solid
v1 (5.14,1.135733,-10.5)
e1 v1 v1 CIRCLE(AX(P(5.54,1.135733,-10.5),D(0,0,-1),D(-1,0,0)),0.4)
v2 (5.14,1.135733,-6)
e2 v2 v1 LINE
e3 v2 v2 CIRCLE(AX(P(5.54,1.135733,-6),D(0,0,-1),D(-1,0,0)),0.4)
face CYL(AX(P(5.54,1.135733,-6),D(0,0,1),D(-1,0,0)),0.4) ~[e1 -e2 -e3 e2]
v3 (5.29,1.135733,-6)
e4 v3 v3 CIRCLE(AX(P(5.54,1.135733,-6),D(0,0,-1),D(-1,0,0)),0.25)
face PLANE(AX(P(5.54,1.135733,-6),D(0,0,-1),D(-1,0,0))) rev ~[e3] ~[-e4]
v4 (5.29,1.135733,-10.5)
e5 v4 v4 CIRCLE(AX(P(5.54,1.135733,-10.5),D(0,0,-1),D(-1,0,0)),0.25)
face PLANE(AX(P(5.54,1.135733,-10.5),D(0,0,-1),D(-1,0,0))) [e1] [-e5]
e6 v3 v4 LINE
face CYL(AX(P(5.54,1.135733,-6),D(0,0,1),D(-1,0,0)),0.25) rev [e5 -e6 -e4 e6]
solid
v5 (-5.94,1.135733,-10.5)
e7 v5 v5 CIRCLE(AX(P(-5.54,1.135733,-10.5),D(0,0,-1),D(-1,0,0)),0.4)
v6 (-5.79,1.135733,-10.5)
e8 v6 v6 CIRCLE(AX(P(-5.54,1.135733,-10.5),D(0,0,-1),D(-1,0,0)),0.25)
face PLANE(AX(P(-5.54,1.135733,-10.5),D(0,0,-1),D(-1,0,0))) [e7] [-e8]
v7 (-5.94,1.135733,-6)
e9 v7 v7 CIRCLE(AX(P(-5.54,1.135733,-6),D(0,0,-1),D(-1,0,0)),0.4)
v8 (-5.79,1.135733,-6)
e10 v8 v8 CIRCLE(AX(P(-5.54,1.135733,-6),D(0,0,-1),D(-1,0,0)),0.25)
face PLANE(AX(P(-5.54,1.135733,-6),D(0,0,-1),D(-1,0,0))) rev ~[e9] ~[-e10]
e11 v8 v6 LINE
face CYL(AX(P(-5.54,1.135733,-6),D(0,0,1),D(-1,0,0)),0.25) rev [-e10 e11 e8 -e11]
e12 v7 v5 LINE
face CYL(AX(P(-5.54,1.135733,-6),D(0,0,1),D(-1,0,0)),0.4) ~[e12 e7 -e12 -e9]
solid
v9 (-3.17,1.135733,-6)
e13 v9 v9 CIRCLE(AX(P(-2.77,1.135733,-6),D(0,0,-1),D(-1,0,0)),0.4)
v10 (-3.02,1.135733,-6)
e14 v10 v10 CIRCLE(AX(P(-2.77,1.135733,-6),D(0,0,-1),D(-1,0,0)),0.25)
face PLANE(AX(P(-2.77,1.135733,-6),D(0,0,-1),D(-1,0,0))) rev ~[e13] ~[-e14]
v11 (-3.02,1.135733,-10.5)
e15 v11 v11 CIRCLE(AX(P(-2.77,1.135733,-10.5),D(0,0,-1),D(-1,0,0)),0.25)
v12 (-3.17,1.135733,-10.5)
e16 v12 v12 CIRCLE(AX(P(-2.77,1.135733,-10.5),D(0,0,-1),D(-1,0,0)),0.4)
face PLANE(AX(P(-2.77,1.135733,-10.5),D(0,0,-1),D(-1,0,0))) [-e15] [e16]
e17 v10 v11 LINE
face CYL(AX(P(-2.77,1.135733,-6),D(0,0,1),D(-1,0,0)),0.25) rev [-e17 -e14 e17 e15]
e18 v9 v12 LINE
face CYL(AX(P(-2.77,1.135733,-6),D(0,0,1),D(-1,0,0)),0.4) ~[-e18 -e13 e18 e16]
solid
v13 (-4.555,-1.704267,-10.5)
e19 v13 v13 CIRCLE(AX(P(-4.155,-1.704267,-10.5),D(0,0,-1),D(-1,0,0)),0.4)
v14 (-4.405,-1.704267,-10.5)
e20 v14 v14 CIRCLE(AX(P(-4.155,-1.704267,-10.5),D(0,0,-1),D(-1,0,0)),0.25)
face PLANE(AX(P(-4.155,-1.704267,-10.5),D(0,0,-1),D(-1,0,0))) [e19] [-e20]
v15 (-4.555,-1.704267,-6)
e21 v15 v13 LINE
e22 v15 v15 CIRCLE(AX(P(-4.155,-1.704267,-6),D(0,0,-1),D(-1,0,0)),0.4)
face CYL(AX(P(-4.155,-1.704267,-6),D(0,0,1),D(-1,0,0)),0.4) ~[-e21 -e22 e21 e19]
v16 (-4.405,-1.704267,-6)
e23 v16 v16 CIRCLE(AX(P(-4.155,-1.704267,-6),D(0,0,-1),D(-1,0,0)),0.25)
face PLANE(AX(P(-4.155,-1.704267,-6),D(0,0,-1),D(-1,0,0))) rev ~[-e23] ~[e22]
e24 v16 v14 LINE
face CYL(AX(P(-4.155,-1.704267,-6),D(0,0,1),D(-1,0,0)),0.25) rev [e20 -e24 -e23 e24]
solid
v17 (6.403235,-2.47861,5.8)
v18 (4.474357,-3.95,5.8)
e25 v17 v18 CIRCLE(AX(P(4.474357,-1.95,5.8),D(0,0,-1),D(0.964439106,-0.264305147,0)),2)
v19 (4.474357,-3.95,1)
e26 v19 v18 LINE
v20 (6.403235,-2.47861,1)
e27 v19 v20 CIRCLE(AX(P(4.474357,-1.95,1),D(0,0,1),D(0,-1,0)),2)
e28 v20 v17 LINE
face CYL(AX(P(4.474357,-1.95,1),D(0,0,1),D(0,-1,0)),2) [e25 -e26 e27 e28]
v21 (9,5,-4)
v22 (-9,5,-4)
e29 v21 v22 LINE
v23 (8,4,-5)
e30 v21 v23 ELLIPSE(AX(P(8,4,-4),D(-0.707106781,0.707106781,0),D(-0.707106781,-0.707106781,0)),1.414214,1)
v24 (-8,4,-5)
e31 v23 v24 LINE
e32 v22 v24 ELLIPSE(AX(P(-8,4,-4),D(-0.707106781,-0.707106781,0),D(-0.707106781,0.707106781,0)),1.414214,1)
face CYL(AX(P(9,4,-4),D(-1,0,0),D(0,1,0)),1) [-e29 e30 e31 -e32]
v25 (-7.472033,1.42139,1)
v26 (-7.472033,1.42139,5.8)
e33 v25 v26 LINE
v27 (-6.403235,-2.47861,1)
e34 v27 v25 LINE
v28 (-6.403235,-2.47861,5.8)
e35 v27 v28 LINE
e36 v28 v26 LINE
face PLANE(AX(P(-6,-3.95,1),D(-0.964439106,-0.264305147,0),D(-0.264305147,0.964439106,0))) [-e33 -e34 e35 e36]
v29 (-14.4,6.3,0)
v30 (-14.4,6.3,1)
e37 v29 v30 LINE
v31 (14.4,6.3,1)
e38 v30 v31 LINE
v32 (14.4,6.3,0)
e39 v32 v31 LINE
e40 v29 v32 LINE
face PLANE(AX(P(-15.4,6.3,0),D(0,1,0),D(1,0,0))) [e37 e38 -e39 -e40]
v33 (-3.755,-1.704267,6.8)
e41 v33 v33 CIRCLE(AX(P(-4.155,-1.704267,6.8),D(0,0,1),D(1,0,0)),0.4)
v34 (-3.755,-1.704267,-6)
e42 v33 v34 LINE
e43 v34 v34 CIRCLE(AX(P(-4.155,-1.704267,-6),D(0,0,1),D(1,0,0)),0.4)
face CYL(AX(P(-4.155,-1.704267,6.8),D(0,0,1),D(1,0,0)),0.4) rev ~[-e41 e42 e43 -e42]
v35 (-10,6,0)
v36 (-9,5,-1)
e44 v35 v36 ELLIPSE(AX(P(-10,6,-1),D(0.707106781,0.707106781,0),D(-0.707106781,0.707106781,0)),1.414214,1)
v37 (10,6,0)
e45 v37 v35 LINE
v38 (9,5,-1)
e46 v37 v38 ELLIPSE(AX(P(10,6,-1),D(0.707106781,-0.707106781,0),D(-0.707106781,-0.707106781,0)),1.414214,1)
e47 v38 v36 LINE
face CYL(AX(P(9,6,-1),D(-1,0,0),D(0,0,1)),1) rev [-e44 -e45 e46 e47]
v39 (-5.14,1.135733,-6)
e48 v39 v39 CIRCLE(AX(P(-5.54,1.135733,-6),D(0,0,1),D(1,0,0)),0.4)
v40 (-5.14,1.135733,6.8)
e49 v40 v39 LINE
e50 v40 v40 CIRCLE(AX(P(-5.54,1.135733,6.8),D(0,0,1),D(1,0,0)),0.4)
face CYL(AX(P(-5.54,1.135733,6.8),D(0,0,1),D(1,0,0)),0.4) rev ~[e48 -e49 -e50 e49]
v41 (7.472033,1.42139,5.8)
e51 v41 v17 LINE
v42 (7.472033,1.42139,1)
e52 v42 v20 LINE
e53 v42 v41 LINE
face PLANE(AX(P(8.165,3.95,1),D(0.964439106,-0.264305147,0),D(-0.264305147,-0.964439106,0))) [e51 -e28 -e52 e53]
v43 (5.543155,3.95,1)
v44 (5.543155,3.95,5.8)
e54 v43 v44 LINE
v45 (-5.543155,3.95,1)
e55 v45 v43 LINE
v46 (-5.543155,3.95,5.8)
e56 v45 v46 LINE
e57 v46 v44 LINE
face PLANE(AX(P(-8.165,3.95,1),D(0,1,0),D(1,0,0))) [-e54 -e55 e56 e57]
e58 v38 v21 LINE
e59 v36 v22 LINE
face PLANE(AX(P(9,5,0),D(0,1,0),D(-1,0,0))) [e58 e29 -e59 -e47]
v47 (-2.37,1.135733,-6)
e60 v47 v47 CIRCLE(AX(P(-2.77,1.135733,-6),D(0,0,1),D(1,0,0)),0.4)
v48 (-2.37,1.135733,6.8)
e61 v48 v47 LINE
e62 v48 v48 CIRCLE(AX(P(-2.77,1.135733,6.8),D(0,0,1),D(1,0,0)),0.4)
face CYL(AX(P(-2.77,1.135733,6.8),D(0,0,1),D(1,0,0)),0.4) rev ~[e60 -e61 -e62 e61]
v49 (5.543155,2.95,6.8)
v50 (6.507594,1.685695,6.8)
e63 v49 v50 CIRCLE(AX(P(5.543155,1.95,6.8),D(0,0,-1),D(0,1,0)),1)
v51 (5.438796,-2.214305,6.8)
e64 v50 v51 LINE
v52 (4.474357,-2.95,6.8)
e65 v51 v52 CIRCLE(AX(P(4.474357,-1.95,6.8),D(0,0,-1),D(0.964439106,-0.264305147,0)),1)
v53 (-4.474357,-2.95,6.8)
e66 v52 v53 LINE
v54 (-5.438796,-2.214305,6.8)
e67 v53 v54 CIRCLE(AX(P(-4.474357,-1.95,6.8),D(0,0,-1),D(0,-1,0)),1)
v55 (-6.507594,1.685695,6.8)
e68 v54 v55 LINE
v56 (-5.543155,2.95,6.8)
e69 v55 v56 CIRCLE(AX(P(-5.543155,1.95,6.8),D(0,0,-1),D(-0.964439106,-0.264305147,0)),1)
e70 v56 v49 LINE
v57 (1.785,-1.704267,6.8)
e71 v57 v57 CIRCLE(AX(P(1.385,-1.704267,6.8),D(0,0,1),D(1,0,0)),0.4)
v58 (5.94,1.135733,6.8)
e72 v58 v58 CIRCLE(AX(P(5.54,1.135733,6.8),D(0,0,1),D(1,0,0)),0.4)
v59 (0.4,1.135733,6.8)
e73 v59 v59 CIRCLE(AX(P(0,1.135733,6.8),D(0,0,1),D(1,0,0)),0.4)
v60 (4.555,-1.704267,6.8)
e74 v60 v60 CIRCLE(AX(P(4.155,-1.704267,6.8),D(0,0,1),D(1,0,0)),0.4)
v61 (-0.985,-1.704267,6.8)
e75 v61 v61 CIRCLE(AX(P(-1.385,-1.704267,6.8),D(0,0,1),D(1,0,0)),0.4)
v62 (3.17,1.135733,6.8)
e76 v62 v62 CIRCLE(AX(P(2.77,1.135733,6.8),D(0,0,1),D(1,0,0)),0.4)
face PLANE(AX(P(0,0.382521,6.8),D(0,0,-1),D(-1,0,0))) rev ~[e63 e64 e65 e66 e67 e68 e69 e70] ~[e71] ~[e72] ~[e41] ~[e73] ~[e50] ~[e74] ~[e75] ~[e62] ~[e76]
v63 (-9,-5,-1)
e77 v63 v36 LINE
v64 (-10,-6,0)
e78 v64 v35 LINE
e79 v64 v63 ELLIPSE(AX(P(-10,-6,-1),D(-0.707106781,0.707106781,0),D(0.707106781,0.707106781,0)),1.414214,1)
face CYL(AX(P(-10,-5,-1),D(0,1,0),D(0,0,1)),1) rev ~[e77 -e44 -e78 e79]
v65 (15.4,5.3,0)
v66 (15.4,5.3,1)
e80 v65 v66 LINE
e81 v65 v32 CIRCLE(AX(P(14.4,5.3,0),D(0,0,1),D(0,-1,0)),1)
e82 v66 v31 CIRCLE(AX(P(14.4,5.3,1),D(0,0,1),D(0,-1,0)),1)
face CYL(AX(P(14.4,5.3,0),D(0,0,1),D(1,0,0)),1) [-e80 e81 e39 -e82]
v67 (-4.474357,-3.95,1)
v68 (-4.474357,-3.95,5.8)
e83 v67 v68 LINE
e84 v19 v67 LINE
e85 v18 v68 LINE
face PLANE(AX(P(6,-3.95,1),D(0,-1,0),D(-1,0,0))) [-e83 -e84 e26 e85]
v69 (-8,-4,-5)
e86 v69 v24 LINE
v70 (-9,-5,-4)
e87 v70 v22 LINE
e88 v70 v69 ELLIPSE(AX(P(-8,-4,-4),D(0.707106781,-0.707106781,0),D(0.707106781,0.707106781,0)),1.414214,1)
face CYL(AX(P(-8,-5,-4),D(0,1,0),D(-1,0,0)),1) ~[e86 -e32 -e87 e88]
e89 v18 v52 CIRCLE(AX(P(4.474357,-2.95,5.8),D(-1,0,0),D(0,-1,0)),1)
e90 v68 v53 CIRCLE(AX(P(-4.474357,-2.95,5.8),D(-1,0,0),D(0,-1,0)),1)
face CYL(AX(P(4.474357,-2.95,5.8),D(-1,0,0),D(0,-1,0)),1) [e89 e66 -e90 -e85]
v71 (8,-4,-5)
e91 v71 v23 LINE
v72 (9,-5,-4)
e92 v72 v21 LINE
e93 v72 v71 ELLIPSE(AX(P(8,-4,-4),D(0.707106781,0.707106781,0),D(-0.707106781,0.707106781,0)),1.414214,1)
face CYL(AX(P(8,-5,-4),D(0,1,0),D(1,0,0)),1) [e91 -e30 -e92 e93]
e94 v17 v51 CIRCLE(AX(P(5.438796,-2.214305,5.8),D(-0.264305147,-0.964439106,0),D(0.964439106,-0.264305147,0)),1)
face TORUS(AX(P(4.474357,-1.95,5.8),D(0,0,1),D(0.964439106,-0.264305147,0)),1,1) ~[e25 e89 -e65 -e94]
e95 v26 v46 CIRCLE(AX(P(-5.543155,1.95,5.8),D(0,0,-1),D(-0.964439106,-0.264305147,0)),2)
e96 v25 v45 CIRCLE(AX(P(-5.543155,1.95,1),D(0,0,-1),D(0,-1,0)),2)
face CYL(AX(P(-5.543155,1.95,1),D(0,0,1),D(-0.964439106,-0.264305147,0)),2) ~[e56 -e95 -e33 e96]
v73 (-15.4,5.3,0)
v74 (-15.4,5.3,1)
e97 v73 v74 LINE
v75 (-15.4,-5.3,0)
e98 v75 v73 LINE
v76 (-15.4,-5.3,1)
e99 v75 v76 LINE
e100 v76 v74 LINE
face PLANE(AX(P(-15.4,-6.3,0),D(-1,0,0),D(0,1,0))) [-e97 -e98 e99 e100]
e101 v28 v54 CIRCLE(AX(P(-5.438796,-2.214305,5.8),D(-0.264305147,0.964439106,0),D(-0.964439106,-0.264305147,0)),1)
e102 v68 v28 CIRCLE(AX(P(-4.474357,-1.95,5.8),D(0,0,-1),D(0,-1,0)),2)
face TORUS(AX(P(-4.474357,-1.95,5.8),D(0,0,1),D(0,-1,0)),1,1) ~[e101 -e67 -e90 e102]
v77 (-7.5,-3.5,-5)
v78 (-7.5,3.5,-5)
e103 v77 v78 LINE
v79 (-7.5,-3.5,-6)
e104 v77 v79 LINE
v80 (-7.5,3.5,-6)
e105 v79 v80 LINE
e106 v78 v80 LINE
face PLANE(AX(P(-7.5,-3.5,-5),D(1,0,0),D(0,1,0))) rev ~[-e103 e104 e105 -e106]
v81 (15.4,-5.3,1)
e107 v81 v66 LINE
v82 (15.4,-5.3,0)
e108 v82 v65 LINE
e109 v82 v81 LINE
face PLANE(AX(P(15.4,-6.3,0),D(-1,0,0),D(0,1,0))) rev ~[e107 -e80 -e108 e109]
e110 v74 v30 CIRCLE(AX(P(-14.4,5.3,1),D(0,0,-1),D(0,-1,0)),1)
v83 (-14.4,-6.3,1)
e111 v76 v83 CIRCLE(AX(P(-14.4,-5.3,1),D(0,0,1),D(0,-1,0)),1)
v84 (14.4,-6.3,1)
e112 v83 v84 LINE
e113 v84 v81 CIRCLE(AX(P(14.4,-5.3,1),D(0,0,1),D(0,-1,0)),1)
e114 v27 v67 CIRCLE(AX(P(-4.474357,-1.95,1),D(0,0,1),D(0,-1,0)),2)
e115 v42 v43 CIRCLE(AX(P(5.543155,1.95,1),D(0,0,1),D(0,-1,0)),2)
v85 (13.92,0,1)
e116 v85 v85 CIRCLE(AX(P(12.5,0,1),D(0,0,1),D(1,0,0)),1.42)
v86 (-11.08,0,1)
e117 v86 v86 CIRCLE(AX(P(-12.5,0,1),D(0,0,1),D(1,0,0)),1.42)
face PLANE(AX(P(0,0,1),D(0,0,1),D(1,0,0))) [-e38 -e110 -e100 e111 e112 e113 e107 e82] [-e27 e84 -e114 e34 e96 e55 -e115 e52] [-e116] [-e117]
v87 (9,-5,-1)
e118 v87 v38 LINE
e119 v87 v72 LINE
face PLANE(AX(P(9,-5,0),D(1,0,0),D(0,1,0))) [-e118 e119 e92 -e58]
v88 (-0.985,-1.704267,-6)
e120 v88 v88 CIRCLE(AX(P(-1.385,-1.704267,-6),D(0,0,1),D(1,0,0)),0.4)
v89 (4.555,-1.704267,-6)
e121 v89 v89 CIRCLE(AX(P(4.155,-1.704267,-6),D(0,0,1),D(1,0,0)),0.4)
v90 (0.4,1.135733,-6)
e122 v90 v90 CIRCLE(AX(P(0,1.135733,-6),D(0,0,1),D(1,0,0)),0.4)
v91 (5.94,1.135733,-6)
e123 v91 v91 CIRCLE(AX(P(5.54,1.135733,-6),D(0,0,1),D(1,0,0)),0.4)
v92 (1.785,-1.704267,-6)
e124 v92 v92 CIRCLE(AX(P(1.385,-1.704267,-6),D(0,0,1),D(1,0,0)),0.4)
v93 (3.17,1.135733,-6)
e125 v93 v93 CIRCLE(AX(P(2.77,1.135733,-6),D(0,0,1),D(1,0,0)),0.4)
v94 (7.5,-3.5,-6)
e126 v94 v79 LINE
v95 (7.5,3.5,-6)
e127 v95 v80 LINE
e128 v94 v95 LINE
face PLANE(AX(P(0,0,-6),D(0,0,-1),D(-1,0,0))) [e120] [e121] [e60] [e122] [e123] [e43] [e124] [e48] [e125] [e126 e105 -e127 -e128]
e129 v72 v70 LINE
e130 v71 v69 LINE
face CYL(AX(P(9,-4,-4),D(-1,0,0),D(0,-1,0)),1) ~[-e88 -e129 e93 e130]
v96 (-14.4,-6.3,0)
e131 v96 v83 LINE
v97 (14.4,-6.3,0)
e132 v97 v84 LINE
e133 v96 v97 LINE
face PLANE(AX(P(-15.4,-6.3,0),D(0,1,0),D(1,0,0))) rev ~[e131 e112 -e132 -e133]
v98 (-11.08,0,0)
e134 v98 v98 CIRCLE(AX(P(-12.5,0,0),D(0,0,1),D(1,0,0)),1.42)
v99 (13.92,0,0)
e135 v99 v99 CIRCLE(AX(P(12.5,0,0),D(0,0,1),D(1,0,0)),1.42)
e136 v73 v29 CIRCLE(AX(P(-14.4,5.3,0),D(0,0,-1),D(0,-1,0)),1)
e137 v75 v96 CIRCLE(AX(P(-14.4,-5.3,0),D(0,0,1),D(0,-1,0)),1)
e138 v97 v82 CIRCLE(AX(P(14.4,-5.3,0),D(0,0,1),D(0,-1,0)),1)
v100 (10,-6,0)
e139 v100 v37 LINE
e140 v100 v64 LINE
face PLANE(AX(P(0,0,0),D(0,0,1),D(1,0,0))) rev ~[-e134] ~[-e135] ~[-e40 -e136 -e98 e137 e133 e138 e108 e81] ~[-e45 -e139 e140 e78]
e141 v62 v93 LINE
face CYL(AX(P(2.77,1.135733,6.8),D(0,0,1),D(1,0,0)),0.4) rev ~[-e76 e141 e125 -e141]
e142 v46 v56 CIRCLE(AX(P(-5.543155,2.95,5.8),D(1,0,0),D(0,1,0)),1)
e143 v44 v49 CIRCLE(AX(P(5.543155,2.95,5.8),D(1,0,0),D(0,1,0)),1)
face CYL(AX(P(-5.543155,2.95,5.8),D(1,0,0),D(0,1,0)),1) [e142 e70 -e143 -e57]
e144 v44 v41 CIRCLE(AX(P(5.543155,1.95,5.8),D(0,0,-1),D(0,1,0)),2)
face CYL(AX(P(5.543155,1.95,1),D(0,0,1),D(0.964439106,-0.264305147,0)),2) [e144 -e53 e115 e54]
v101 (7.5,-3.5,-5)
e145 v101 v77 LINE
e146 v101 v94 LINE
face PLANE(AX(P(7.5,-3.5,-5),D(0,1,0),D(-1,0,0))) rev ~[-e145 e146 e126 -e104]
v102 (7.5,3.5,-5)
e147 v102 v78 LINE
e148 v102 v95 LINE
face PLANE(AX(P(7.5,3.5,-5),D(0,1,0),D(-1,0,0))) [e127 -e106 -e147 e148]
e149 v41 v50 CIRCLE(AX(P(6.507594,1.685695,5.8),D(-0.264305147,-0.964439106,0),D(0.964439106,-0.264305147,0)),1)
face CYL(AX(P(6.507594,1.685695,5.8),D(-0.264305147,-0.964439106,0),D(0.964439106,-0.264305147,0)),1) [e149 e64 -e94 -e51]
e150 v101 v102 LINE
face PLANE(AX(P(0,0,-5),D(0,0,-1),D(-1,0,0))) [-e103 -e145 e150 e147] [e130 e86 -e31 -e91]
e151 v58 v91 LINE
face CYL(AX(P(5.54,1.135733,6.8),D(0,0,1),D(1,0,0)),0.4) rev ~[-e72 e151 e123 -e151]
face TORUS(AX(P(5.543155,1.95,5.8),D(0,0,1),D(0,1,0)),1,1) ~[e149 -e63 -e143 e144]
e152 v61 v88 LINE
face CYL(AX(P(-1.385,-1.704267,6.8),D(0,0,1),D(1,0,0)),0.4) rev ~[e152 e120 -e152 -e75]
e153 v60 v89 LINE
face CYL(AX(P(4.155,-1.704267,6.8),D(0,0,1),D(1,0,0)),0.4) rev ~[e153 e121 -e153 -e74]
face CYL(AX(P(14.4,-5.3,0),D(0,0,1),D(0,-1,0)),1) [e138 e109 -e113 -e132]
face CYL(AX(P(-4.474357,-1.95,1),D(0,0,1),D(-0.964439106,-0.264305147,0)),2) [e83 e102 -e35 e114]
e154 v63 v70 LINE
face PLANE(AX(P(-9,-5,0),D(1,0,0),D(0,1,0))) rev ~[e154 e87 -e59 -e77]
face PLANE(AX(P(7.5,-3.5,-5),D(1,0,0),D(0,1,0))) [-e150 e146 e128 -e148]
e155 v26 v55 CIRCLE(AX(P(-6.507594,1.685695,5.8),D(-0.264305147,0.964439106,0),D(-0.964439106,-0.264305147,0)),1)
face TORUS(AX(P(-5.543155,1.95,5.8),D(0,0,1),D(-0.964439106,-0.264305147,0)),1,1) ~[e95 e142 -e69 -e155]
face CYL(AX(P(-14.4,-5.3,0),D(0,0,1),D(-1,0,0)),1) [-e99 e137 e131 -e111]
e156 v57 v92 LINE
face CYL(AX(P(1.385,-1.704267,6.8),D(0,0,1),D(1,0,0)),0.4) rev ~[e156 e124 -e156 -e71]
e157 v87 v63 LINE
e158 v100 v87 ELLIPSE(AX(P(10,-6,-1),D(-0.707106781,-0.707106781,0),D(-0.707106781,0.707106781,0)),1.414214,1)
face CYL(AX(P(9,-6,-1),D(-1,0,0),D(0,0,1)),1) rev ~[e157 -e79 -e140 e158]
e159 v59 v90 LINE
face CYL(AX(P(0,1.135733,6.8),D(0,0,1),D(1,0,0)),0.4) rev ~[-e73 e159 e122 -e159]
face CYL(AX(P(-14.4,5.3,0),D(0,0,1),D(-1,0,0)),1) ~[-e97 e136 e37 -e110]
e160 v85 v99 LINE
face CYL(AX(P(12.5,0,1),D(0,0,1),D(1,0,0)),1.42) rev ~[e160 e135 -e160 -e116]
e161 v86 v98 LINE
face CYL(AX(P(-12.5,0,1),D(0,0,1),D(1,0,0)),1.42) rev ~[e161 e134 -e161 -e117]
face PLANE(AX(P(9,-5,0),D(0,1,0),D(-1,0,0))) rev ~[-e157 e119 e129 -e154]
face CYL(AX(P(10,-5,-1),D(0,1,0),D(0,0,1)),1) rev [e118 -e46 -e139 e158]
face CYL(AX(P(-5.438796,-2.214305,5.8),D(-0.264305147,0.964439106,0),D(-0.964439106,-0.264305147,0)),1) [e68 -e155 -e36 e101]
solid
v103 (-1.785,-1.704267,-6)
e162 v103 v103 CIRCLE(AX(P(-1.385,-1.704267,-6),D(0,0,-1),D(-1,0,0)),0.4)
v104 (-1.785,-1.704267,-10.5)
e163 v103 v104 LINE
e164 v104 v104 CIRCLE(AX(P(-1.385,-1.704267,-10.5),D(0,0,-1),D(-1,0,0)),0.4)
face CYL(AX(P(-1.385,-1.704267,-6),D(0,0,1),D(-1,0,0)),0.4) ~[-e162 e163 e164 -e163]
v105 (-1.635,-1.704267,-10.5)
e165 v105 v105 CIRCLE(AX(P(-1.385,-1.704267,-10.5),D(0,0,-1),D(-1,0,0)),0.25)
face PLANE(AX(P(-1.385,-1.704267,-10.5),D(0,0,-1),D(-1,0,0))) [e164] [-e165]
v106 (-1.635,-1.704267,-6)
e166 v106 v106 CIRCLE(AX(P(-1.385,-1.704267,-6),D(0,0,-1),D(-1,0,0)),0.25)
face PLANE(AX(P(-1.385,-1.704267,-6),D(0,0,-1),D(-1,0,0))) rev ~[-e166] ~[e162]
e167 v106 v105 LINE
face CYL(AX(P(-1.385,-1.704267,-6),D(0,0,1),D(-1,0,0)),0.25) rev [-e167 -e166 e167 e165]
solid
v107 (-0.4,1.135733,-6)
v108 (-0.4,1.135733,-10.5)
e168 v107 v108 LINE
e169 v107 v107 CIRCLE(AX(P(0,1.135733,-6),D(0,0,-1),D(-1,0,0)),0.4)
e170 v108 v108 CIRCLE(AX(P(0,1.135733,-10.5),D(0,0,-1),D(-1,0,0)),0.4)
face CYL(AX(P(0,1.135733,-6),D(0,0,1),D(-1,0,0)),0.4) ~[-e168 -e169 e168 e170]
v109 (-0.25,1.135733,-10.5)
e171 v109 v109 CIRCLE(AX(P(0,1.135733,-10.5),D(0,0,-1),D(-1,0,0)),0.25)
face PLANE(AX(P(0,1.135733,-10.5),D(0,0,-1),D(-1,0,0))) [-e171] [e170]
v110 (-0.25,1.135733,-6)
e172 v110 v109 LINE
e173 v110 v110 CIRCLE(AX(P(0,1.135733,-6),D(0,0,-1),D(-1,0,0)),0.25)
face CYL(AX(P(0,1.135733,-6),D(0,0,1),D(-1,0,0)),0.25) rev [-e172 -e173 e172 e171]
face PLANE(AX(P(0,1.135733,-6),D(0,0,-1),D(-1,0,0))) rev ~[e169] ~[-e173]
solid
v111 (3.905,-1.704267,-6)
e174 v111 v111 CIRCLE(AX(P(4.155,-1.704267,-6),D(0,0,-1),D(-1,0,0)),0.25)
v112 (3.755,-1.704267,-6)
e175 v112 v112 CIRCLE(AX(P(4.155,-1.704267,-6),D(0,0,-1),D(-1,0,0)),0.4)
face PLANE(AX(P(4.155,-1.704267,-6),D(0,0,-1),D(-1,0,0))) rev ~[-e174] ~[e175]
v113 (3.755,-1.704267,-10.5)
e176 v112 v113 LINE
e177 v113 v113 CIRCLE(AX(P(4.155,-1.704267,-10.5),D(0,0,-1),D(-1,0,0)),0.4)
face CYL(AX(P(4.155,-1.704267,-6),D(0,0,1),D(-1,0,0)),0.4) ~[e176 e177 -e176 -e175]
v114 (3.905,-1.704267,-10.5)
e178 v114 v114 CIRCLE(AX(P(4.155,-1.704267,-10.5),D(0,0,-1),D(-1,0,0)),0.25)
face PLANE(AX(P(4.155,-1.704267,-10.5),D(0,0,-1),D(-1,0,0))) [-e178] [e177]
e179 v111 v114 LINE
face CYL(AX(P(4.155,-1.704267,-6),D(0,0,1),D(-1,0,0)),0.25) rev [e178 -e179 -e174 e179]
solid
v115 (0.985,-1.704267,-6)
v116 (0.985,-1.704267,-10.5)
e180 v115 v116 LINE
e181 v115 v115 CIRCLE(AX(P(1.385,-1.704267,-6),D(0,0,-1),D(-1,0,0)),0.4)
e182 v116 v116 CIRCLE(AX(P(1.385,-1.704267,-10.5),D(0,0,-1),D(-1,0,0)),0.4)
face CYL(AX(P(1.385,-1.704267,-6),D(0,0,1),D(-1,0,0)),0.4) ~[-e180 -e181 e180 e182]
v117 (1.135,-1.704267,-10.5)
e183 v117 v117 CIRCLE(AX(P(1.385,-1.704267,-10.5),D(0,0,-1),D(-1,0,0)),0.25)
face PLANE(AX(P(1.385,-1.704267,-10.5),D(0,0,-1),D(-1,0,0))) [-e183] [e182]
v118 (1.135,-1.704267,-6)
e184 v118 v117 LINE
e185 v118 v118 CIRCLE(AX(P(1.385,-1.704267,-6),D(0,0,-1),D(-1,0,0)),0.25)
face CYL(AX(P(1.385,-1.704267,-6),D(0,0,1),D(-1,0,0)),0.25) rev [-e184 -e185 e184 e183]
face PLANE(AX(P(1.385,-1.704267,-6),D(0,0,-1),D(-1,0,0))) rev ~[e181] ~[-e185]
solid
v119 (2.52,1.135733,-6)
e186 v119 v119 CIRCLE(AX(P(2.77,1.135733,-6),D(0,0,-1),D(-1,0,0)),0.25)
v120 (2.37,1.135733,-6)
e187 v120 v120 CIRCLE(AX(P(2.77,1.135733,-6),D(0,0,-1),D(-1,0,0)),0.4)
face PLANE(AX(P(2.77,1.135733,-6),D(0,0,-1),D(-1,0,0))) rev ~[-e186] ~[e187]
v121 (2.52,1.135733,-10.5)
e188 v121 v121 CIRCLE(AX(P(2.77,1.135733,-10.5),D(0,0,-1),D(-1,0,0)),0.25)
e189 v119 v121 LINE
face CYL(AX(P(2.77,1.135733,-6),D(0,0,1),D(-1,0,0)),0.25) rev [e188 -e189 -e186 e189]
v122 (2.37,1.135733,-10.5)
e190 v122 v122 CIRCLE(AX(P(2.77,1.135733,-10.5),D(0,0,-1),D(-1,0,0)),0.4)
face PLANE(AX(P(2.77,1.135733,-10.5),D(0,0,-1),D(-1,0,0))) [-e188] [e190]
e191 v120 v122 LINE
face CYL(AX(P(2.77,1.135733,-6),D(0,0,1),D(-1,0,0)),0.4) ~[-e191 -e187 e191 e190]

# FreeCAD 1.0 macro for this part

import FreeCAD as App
import Part
import Sketcher

V = App.Vector
Q = App.Units.Quantity


def edges_at(feature, points):
    """Names of the edges that pass closest to the given points."""
    edges = feature.Shape.Edges
    near = lambda p: min(range(len(edges)), key=lambda i: edges[i].distToShape(Part.Vertex(*p))[0])
    return sorted({f"Edge{near(p) + 1}" for p in points})

doc = App.newDocument("Part")
body = doc.addObject("PartDesign::Body", "Body")

# Sketch on XY plane
sketch1 = body.newObject("Sketcher::SketchObject", "Sketch")
sketch1.AttachmentSupport = (doc.getObject("XY_Plane"), [""])
sketch1.MapMode = "FlatFace"
sketch1.addGeometry([
    Part.LineSegment(V(-15, 6, 0), V(-15, -6, 0)),
    Part.LineSegment(V(-15, -6, 0), V(15, -6, 0)),
    Part.LineSegment(V(15, -6, 0), V(15, 6, 0)),
    Part.LineSegment(V(15, 6, 0), V(-15, 6, 0)),
], False)
sketch1.addConstraint([
    Sketcher.Constraint("Coincident", 0, 2, 1, 1),
    Sketcher.Constraint("Coincident", 1, 2, 2, 1),
    Sketcher.Constraint("Coincident", 2, 2, 3, 1),
    Sketcher.Constraint("Coincident", 3, 2, 0, 1),
    Sketcher.Constraint("Vertical", 0),
    Sketcher.Constraint("Horizontal", 1),
    Sketcher.Constraint("Vertical", 2),
    Sketcher.Constraint("Horizontal", 3),
    Sketcher.Constraint("Symmetric", 0, 2, 2, 2, -1, 1),
    Sketcher.Constraint("DistanceX", 1, 1, 1, 2, Q("30.8 mm")),
    Sketcher.Constraint("DistanceY", 0, 2, 0, 1, Q("12.6 mm")),
])
pad1 = body.newObject("PartDesign::Pad", "Pad")
pad1.Profile = sketch1
pad1.Length = 1
doc.recompute()

fillet = body.newObject("PartDesign::Fillet", "Fillet")
fillet.Base = (pad1, edges_at(pad1, [
    (15.4, -6.3, 0.5),
    (-15.4, -6.3, 0.5),
    (-15.4, 6.3, 0.5),
    (15.4, 6.3, 0.5),
]))
fillet.Radius = 1

# Sketch on XY plane
sketch2 = body.newObject("Sketcher::SketchObject", "Sketch001")
sketch2.AttachmentSupport = (doc.getObject("XY_Plane"), [""])
sketch2.MapMode = "FlatFace"
sketch2.AttachmentOffset = App.Placement(V(0, 0, 1), App.Rotation())
sketch2.addGeometry([
    Part.LineSegment(V(8, 4, 0), V(-8, 4, 0)),
    Part.LineSegment(V(-8, 4, 0), V(-6, -4, 0)),
    Part.LineSegment(V(-6, -4, 0), V(6, -4, 0)),
    Part.LineSegment(V(6, -4, 0), V(8, 4, 0)),
], False)
sketch2.addConstraint([
    Sketcher.Constraint("Coincident", 0, 2, 1, 1),
    Sketcher.Constraint("Coincident", 1, 2, 2, 1),
    Sketcher.Constraint("Coincident", 2, 2, 3, 1),
    Sketcher.Constraint("Coincident", 3, 2, 0, 1),
    Sketcher.Constraint("Horizontal", 0),
    Sketcher.Constraint("Horizontal", 2),
    Sketcher.Constraint("Equal", 1, 3),
    Sketcher.Constraint("DistanceX", 2, 1, 2, 2, Q("12 mm")),
    Sketcher.Constraint("DistanceX", 1, 2, -1, 1, Q("6 mm")),
    Sketcher.Constraint("DistanceX", 0, 2, 0, 1, Q("16.33 mm")),
    Sketcher.Constraint("DistanceY", 1, 2, 0, 2, Q("7.9 mm")),
    Sketcher.Constraint("DistanceY", -1, 1, 0, 2, Q("3.95 mm")),
])
pad2 = body.newObject("PartDesign::Pad", "Pad001")
pad2.Profile = sketch2
pad2.Length = 5.8
doc.recompute()

fillet2 = body.newObject("PartDesign::Fillet", "Fillet001")
fillet2.Base = (pad2, edges_at(pad2, [
    (-8.165, 3.95, 3.9),
    (-6, -3.95, 3.9),
    (6, -3.95, 3.9),
    (8.165, 3.95, 3.9),
]))
fillet2.Radius = 2
doc.recompute()

fillet3 = body.newObject("PartDesign::Fillet", "Fillet002")
fillet3.Base = (fillet2, edges_at(fillet2, [
    (0, -3.95, 6.8),
    (-6.938, -0.529, 6.8),
    (6.938, -0.529, 6.8),
    (0, 3.95, 6.8),
    (-7.133, 3.163, 6.8),
    (7.133, 3.163, 6.8),
    (5.687, -3.54, 6.8),
    (-5.687, -3.54, 6.8),
]))
fillet3.Radius = 1

# Sketch on XY plane
sketch3 = body.newObject("Sketcher::SketchObject", "Sketch002")
sketch3.AttachmentSupport = (doc.getObject("XY_Plane"), [""])
sketch3.MapMode = "FlatFace"
sketch3.AttachmentOffset = App.Placement(V(0, 0, 1), App.Rotation())
sketch3.addGeometry([
    Part.Circle(V(-12.5, 0, 0), V(0, 0, 1), 1.4),
    Part.Circle(V(12.5, 0, 0), V(0, 0, 1), 1.4),
], False)
sketch3.addConstraint([
    Sketcher.Constraint("Equal", 0, 1),
    Sketcher.Constraint("Symmetric", 0, 3, 1, 3, -1, 1),
    Sketcher.Constraint("PointOnObject", 0, 3, -1),
    Sketcher.Constraint("Diameter", 0, Q("2.84 mm")),
    Sketcher.Constraint("DistanceX", 0, 3, 1, 3, Q("25 mm")),
])
pocket1 = body.newObject("PartDesign::Pocket", "Pocket")
pocket1.Profile = sketch3
pocket1.Length = 5.8

# Sketch on XY plane
sketch4 = body.newObject("Sketcher::SketchObject", "Sketch003")
sketch4.AttachmentSupport = (doc.getObject("XY_Plane"), [""])
sketch4.MapMode = "FlatFace"
sketch4.addGeometry([
    Part.LineSegment(V(9, 5, 0), V(9, -5, 0)),
    Part.LineSegment(V(9, -5, 0), V(-9, -5, 0)),
    Part.LineSegment(V(-9, -5, 0), V(-9, 5, 0)),
    Part.LineSegment(V(-9, 5, 0), V(9, 5, 0)),
], False)
sketch4.addConstraint([
    Sketcher.Constraint("Coincident", 0, 2, 1, 1),
    Sketcher.Constraint("Coincident", 1, 2, 2, 1),
    Sketcher.Constraint("Coincident", 2, 2, 3, 1),
    Sketcher.Constraint("Coincident", 3, 2, 0, 1),
    Sketcher.Constraint("Vertical", 0),
    Sketcher.Constraint("Horizontal", 1),
    Sketcher.Constraint("Vertical", 2),
    Sketcher.Constraint("Horizontal", 3),
    Sketcher.Constraint("Symmetric", 0, 2, 2, 2, -1, 1),
    Sketcher.Constraint("DistanceX", 1, 2, 1, 1, Q("18 mm")),
    Sketcher.Constraint("DistanceY", 0, 2, 0, 1, Q("10 mm")),
])
pad3 = body.newObject("PartDesign::Pad", "Pad002")
pad3.Profile = sketch4
pad3.Length = 5
pad3.Reversed = True
doc.recompute()

fillet4 = body.newObject("PartDesign::Fillet", "Fillet003")
fillet4.Base = (pad3, edges_at(pad3, [
    (-9, 0, 0),
    (0, 5, 0),
    (9, 0, 0),
    (0, -5, 0),
]))
fillet4.Radius = 1
doc.recompute()

fillet5 = body.newObject("PartDesign::Fillet", "Fillet004")
fillet5.Base = (fillet4, edges_at(fillet4, [
    (-9, 0, -5),
    (0, 5, -5),
    (9, 0, -5),
    (0, -5, -5),
]))
fillet5.Radius = 1

# Sketch on XY plane
sketch5 = body.newObject("Sketcher::SketchObject", "Sketch004")
sketch5.AttachmentSupport = (doc.getObject("XY_Plane"), [""])
sketch5.MapMode = "FlatFace"
sketch5.AttachmentOffset = App.Placement(V(0, 0, -5), App.Rotation())
sketch5.addGeometry([
    Part.LineSegment(V(8, 4, 0), V(8, -4, 0)),
    Part.LineSegment(V(8, -4, 0), V(-8, -4, 0)),
    Part.LineSegment(V(-8, -4, 0), V(-8, 4, 0)),
    Part.LineSegment(V(-8, 4, 0), V(8, 4, 0)),
], False)
sketch5.addConstraint([
    Sketcher.Constraint("Coincident", 0, 2, 1, 1),
    Sketcher.Constraint("Coincident", 1, 2, 2, 1),
    Sketcher.Constraint("Coincident", 2, 2, 3, 1),
    Sketcher.Constraint("Coincident", 3, 2, 0, 1),
    Sketcher.Constraint("Vertical", 0),
    Sketcher.Constraint("Horizontal", 1),
    Sketcher.Constraint("Vertical", 2),
    Sketcher.Constraint("Horizontal", 3),
    Sketcher.Constraint("Symmetric", 0, 2, 2, 2, -1, 1),
    Sketcher.Constraint("DistanceX", 1, 2, 1, 1, Q("15 mm")),
    Sketcher.Constraint("DistanceY", 0, 2, 0, 1, Q("7 mm")),
])
pad4 = body.newObject("PartDesign::Pad", "Pad003")
pad4.Profile = sketch5
pad4.Length = 1
pad4.Reversed = True

# Sketch on XY plane
sketch6 = body.newObject("Sketcher::SketchObject", "Sketch005")
sketch6.AttachmentSupport = (doc.getObject("XY_Plane"), [""])
sketch6.MapMode = "FlatFace"
sketch6.AttachmentOffset = App.Placement(V(0, 0, 6.8), App.Rotation())
sketch6.addGeometry(Part.Circle(V(-5.54, 1.14, 0), V(0, 0, 1), 0.4), False)
sketch6.addConstraint([
    Sketcher.Constraint("Diameter", 0, Q("0.8 mm")),
    Sketcher.Constraint("DistanceX", 0, 3, -1, 1, Q("5.54 mm")),
    Sketcher.Constraint("DistanceY", -1, 1, 0, 3, Q("1.135733 mm")),
])
pocket2 = body.newObject("PartDesign::Pocket", "Pocket001")
pocket2.Profile = sketch6
pocket2.Length = 20
doc.recompute()

linearpattern = body.newObject("PartDesign::LinearPattern", "LinearPattern")
linearpattern.Originals = [pocket2]
linearpattern.Direction = (doc.getObject("X_Axis"), [""])
linearpattern.Mode = "offset"
linearpattern.Offset = 2.77
linearpattern.Occurrences = 5
body.Tip = linearpattern

# Sketch on XY plane
sketch7 = body.newObject("Sketcher::SketchObject", "Sketch006")
sketch7.AttachmentSupport = (doc.getObject("XY_Plane"), [""])
sketch7.MapMode = "FlatFace"
sketch7.AttachmentOffset = App.Placement(V(0, 0, 6.8), App.Rotation())
sketch7.addGeometry(Part.Circle(V(-4.16, -1.7, 0), V(0, 0, 1), 0.4), False)
sketch7.addConstraint([
    Sketcher.Constraint("Diameter", 0, Q("0.8 mm")),
    Sketcher.Constraint("DistanceX", 0, 3, -1, 1, Q("4.155 mm")),
    Sketcher.Constraint("DistanceY", 0, 3, -1, 1, Q("1.704267 mm")),
])
pocket3 = body.newObject("PartDesign::Pocket", "Pocket002")
pocket3.Profile = sketch7
pocket3.Length = 20
doc.recompute()

linearpattern2 = body.newObject("PartDesign::LinearPattern", "LinearPattern001")
linearpattern2.Originals = [pocket3]
linearpattern2.Direction = (doc.getObject("X_Axis"), [""])
linearpattern2.Mode = "offset"
linearpattern2.Offset = 2.77
linearpattern2.Occurrences = 4
body.Tip = linearpattern2
body2 = doc.addObject("PartDesign::Body", "Body001")

# Sketch on XY plane
sketch8 = body2.newObject("Sketcher::SketchObject", "Sketch007")
sketch8.AttachmentSupport = (doc.getObject("XY_Plane001"), [""])
sketch8.MapMode = "FlatFace"
sketch8.AttachmentOffset = App.Placement(V(0, 0, -6), App.Rotation())
sketch8.addGeometry(Part.Circle(V(5.54, 1.14, 0), V(0, 0, 1), 0.4), False)
sketch8.addConstraint([
    Sketcher.Constraint("Diameter", 0, Q("0.8 mm")),
    Sketcher.Constraint("DistanceX", -1, 1, 0, 3, Q("5.54 mm")),
    Sketcher.Constraint("DistanceY", -1, 1, 0, 3, Q("1.135733 mm")),
])
pad5 = body2.newObject("PartDesign::Pad", "Pad004")
pad5.Profile = sketch8
pad5.Length = 4.5
pad5.Reversed = True
body3 = doc.addObject("PartDesign::Body", "Body002")

# Sketch on XY plane
sketch9 = body3.newObject("Sketcher::SketchObject", "Sketch008")
sketch9.AttachmentSupport = (doc.getObject("XY_Plane002"), [""])
sketch9.MapMode = "FlatFace"
sketch9.AttachmentOffset = App.Placement(V(0, 0, -6), App.Rotation())
sketch9.addGeometry(Part.Circle(V(2.77, 1.14, 0), V(0, 0, 1), 0.4), False)
sketch9.addConstraint([
    Sketcher.Constraint("Diameter", 0, Q("0.8 mm")),
    Sketcher.Constraint("DistanceX", -1, 1, 0, 3, Q("2.77 mm")),
    Sketcher.Constraint("DistanceY", -1, 1, 0, 3, Q("1.135733 mm")),
])
pad6 = body3.newObject("PartDesign::Pad", "Pad005")
pad6.Profile = sketch9
pad6.Length = 4.5
pad6.Reversed = True
body4 = doc.addObject("PartDesign::Body", "Body003")

# Sketch on XY plane
sketch10 = body4.newObject("Sketcher::SketchObject", "Sketch009")
sketch10.AttachmentSupport = (doc.getObject("XY_Plane003"), [""])
sketch10.MapMode = "FlatFace"
sketch10.AttachmentOffset = App.Placement(V(0, 0, -6), App.Rotation())
sketch10.addGeometry(Part.Circle(V(0, 1.14, 0), V(0, 0, 1), 0.4), False)
sketch10.addConstraint([
    Sketcher.Constraint("PointOnObject", 0, 3, -2),
    Sketcher.Constraint("Diameter", 0, Q("0.8 mm")),
    Sketcher.Constraint("DistanceY", -1, 1, 0, 3, Q("1.135733 mm")),
])
pad7 = body4.newObject("PartDesign::Pad", "Pad006")
pad7.Profile = sketch10
pad7.Length = 4.5
pad7.Reversed = True
body5 = doc.addObject("PartDesign::Body", "Body004")

# Sketch on XY plane
sketch11 = body5.newObject("Sketcher::SketchObject", "Sketch010")
sketch11.AttachmentSupport = (doc.getObject("XY_Plane004"), [""])
sketch11.MapMode = "FlatFace"
sketch11.AttachmentOffset = App.Placement(V(0, 0, -6), App.Rotation())
sketch11.addGeometry(Part.Circle(V(-2.77, 1.14, 0), V(0, 0, 1), 0.4), False)
sketch11.addConstraint([
    Sketcher.Constraint("Diameter", 0, Q("0.8 mm")),
    Sketcher.Constraint("DistanceX", 0, 3, -1, 1, Q("2.77 mm")),
    Sketcher.Constraint("DistanceY", -1, 1, 0, 3, Q("1.135733 mm")),
])
pad8 = body5.newObject("PartDesign::Pad", "Pad007")
pad8.Profile = sketch11
pad8.Length = 4.5
pad8.Reversed = True
body6 = doc.addObject("PartDesign::Body", "Body005")

# Sketch on XY plane
sketch12 = body6.newObject("Sketcher::SketchObject", "Sketch011")
sketch12.AttachmentSupport = (doc.getObject("XY_Plane005"), [""])
sketch12.MapMode = "FlatFace"
sketch12.AttachmentOffset = App.Placement(V(0, 0, -6), App.Rotation())
sketch12.addGeometry(Part.Circle(V(-5.54, 1.14, 0), V(0, 0, 1), 0.4), False)
sketch12.addConstraint([
    Sketcher.Constraint("Diameter", 0, Q("0.8 mm")),
    Sketcher.Constraint("DistanceX", 0, 3, -1, 1, Q("5.54 mm")),
    Sketcher.Constraint("DistanceY", -1, 1, 0, 3, Q("1.135733 mm")),
])
pad9 = body6.newObject("PartDesign::Pad", "Pad008")
pad9.Profile = sketch12
pad9.Length = 4.5
pad9.Reversed = True
body7 = doc.addObject("PartDesign::Body", "Body006")

# Sketch on XY plane
sketch13 = body7.newObject("Sketcher::SketchObject", "Sketch012")
sketch13.AttachmentSupport = (doc.getObject("XY_Plane006"), [""])
sketch13.MapMode = "FlatFace"
sketch13.AttachmentOffset = App.Placement(V(0, 0, -6), App.Rotation())
sketch13.addGeometry(Part.Circle(V(-4.16, -1.7, 0), V(0, 0, 1), 0.4), False)
sketch13.addConstraint([
    Sketcher.Constraint("Diameter", 0, Q("0.8 mm")),
    Sketcher.Constraint("DistanceX", 0, 3, -1, 1, Q("4.155 mm")),
    Sketcher.Constraint("DistanceY", 0, 3, -1, 1, Q("1.704267 mm")),
])
pad10 = body7.newObject("PartDesign::Pad", "Pad009")
pad10.Profile = sketch13
pad10.Length = 4.5
pad10.Reversed = True
body8 = doc.addObject("PartDesign::Body", "Body007")

# Sketch on XY plane
sketch14 = body8.newObject("Sketcher::SketchObject", "Sketch013")
sketch14.AttachmentSupport = (doc.getObject("XY_Plane007"), [""])
sketch14.MapMode = "FlatFace"
sketch14.AttachmentOffset = App.Placement(V(0, 0, -6), App.Rotation())
sketch14.addGeometry(Part.Circle(V(-1.39, -1.7, 0), V(0, 0, 1), 0.4), False)
sketch14.addConstraint([
    Sketcher.Constraint("Diameter", 0, Q("0.8 mm")),
    Sketcher.Constraint("DistanceX", 0, 3, -1, 1, Q("1.385 mm")),
    Sketcher.Constraint("DistanceY", 0, 3, -1, 1, Q("1.704267 mm")),
])
pad11 = body8.newObject("PartDesign::Pad", "Pad010")
pad11.Profile = sketch14
pad11.Length = 4.5
pad11.Reversed = True
body9 = doc.addObject("PartDesign::Body", "Body008")

# Sketch on XY plane
sketch15 = body9.newObject("Sketcher::SketchObject", "Sketch014")
sketch15.AttachmentSupport = (doc.getObject("XY_Plane008"), [""])
sketch15.MapMode = "FlatFace"
sketch15.AttachmentOffset = App.Placement(V(0, 0, -6), App.Rotation())
sketch15.addGeometry(Part.Circle(V(1.39, -1.7, 0), V(0, 0, 1), 0.4), False)
sketch15.addConstraint([
    Sketcher.Constraint("Diameter", 0, Q("0.8 mm")),
    Sketcher.Constraint("DistanceX", -1, 1, 0, 3, Q("1.385 mm")),
    Sketcher.Constraint("DistanceY", 0, 3, -1, 1, Q("1.704267 mm")),
])
pad12 = body9.newObject("PartDesign::Pad", "Pad011")
pad12.Profile = sketch15
pad12.Length = 4.5
pad12.Reversed = True
body10 = doc.addObject("PartDesign::Body", "Body009")

# Sketch on XY plane
sketch16 = body10.newObject("Sketcher::SketchObject", "Sketch015")
sketch16.AttachmentSupport = (doc.getObject("XY_Plane009"), [""])
sketch16.MapMode = "FlatFace"
sketch16.AttachmentOffset = App.Placement(V(0, 0, -6), App.Rotation())
sketch16.addGeometry(Part.Circle(V(4.16, -1.7, 0), V(0, 0, 1), 0.4), False)
sketch16.addConstraint([
    Sketcher.Constraint("Diameter", 0, Q("0.8 mm")),
    Sketcher.Constraint("DistanceX", -1, 1, 0, 3, Q("4.155 mm")),
    Sketcher.Constraint("DistanceY", 0, 3, -1, 1, Q("1.704267 mm")),
])
pad13 = body10.newObject("PartDesign::Pad", "Pad012")
pad13.Profile = sketch16
pad13.Length = 4.5
pad13.Reversed = True
body11 = doc.addObject("PartDesign::Body", "Body010")
body11.AllowCompound = True

# Sketch on XY plane
sketch17 = body11.newObject("Sketcher::SketchObject", "Sketch016")
sketch17.AttachmentSupport = (doc.getObject("XY_Plane010"), [""])
sketch17.MapMode = "FlatFace"
sketch17.AttachmentOffset = App.Placement(V(0, 0, -6), App.Rotation())
sketch17.addGeometry([
    Part.Circle(V(5.54, 1.14, 0), V(0, 0, 1), 0.25),  # 0
    Part.Circle(V(2.77, 1.14, 0), V(0, 0, 1), 0.25),  # 1
    Part.Circle(V(0, 1.14, 0), V(0, 0, 1), 0.25),  # 2
    Part.Circle(V(-2.77, 1.14, 0), V(0, 0, 1), 0.25),  # 3
    Part.Circle(V(4.16, -1.7, 0), V(0, 0, 1), 0.25),  # 4
    Part.Circle(V(1.39, -1.7, 0), V(0, 0, 1), 0.25),  # 5
    Part.Circle(V(-1.39, -1.7, 0), V(0, 0, 1), 0.25),  # 6
    Part.Circle(V(-4.16, -1.7, 0), V(0, 0, 1), 0.25),  # 7
    Part.Circle(V(-5.54, 1.14, 0), V(0, 0, 1), 0.25),  # 8
], False)
sketch17.addConstraint([
    Sketcher.Constraint("Equal", 0, 1),
    Sketcher.Constraint("Equal", 1, 2),
    Sketcher.Constraint("Equal", 2, 3),
    Sketcher.Constraint("Equal", 3, 4),
    Sketcher.Constraint("Equal", 4, 5),
    Sketcher.Constraint("Equal", 5, 6),
    Sketcher.Constraint("Equal", 6, 7),
    Sketcher.Constraint("Equal", 7, 8),
    Sketcher.Constraint("Symmetric", 1, 3, 3, 3, -2),
    Sketcher.Constraint("Symmetric", 5, 3, 6, 3, -2),
    Sketcher.Constraint("Symmetric", 4, 3, 7, 3, -2),
    Sketcher.Constraint("Symmetric", 0, 3, 8, 3, -2),
    Sketcher.Constraint("PointOnObject", 2, 3, -2),
    Sketcher.Constraint("Horizontal", 0, 3, 1, 3),
    Sketcher.Constraint("Horizontal", 1, 3, 2, 3),
    Sketcher.Constraint("Horizontal", 4, 3, 5, 3),
    Sketcher.Constraint("Diameter", 0, Q("0.5 mm")),
    Sketcher.Constraint("DistanceX", -1, 1, 0, 3, Q("5.54 mm")),
    Sketcher.Constraint("DistanceX", -1, 1, 1, 3, Q("2.77 mm")),
    Sketcher.Constraint("DistanceY", 4, 3, 0, 3, Q("2.84 mm")),
    Sketcher.Constraint("DistanceX", 5, 3, 4, 3, Q("2.77 mm")),
    Sketcher.Constraint("DistanceX", 6, 3, 5, 3, Q("2.77 mm")),
    Sketcher.Constraint("DistanceY", -1, 1, 0, 3, Q("1.135733 mm")),
])
pad14 = body11.newObject("PartDesign::Pad", "Pad013")
pad14.Profile = sketch17
pad14.Length = 4.5
pad14.Reversed = True
doc.recompute()

body12 = doc.addObject("PartDesign::Body", "Body011")
body12.BaseFeature = body11
boolean = body2.newObject("PartDesign::Boolean", "Boolean")
boolean.Type = "Cut"
boolean.addObjects([body12])
doc.recompute()

body13 = doc.addObject("PartDesign::Body", "Body012")
body13.BaseFeature = body11
boolean2 = body3.newObject("PartDesign::Boolean", "Boolean001")
boolean2.Type = "Cut"
boolean2.addObjects([body13])
doc.recompute()

body14 = doc.addObject("PartDesign::Body", "Body013")
body14.BaseFeature = body11
boolean3 = body4.newObject("PartDesign::Boolean", "Boolean002")
boolean3.Type = "Cut"
boolean3.addObjects([body14])
doc.recompute()

body15 = doc.addObject("PartDesign::Body", "Body014")
body15.BaseFeature = body11
boolean4 = body5.newObject("PartDesign::Boolean", "Boolean003")
boolean4.Type = "Cut"
boolean4.addObjects([body15])
doc.recompute()

body16 = doc.addObject("PartDesign::Body", "Body015")
body16.BaseFeature = body11
boolean5 = body6.newObject("PartDesign::Boolean", "Boolean004")
boolean5.Type = "Cut"
boolean5.addObjects([body16])
doc.recompute()

body17 = doc.addObject("PartDesign::Body", "Body016")
body17.BaseFeature = body11
boolean6 = body7.newObject("PartDesign::Boolean", "Boolean005")
boolean6.Type = "Cut"
boolean6.addObjects([body17])
doc.recompute()

body18 = doc.addObject("PartDesign::Body", "Body017")
body18.BaseFeature = body11
boolean7 = body8.newObject("PartDesign::Boolean", "Boolean006")
boolean7.Type = "Cut"
boolean7.addObjects([body18])
doc.recompute()

body19 = doc.addObject("PartDesign::Body", "Body018")
body19.BaseFeature = body11
boolean8 = body9.newObject("PartDesign::Boolean", "Boolean007")
boolean8.Type = "Cut"
boolean8.addObjects([body19])
doc.recompute()

boolean9 = body10.newObject("PartDesign::Boolean", "Boolean008")
boolean9.Type = "Cut"
boolean9.addObjects([body11])

doc.recompute()
